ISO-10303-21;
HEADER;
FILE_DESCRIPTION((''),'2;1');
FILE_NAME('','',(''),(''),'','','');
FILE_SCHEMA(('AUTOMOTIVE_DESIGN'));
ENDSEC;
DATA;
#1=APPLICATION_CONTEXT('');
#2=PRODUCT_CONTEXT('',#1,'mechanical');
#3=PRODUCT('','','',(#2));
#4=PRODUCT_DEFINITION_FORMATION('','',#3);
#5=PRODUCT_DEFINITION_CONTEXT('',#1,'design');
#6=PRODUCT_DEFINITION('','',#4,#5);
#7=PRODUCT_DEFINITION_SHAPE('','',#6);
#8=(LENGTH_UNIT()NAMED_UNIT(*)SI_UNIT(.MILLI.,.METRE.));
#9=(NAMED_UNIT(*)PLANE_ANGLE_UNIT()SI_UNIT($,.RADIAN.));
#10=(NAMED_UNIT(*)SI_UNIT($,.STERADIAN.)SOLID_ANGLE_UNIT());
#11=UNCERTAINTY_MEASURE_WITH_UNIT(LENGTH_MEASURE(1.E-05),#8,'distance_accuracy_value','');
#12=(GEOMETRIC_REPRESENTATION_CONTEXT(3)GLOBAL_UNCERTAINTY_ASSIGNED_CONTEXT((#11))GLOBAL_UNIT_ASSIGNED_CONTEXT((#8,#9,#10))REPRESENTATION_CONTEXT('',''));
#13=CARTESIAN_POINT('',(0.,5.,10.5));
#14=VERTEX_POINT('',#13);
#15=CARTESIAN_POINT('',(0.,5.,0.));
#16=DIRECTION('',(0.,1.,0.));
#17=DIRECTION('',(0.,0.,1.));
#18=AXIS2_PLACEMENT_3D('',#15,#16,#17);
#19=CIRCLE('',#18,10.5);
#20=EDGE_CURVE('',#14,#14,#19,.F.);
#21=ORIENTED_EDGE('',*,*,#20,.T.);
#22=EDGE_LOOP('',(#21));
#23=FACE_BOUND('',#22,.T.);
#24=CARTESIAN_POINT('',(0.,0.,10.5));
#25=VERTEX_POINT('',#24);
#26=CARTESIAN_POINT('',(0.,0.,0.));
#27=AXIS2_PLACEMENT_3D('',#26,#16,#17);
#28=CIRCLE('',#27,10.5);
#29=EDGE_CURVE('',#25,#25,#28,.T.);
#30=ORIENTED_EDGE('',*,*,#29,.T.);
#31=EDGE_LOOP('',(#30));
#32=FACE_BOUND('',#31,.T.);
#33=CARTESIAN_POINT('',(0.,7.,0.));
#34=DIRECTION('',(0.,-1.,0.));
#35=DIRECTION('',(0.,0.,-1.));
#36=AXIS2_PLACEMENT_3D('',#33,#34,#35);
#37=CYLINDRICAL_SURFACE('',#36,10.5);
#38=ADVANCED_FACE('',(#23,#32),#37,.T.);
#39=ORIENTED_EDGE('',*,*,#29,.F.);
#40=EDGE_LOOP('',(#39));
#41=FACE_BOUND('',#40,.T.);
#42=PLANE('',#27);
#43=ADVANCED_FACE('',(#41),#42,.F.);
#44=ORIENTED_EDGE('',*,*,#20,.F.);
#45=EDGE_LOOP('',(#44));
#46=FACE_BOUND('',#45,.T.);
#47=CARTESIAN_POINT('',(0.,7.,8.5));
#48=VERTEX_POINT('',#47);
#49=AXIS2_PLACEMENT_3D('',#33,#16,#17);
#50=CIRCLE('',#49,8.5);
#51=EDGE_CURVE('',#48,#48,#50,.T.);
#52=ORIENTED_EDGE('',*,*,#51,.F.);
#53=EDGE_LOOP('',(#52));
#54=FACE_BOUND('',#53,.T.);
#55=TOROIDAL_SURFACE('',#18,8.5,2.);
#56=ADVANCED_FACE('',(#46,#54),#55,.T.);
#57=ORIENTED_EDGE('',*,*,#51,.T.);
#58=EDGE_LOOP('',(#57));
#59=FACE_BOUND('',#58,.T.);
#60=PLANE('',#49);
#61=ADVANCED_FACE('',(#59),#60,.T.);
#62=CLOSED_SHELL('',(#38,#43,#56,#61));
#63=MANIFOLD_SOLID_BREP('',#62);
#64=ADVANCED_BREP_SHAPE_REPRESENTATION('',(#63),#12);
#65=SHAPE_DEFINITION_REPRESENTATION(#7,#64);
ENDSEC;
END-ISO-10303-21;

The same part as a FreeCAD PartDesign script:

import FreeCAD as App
import Part
import Sketcher
Q = App.Units.Quantity


def edges_at(feature, points):
    """Names of the edges that pass closest to the given points."""
    edges = feature.Shape.Edges
    near = lambda p: min(range(len(edges)), key=lambda i: edges[i].distToShape(Part.Vertex(*p))[0])
    return sorted({f"Edge{near(p) + 1}" for p in points})

doc = App.newDocument("Part")
body = doc.addObject("PartDesign::Body", "Body")

sketch1 = body.newObject("Sketcher::SketchObject", "Sketch")
sketch1.AttachmentSupport = (doc.getObject("XZ_Plane"), [""])
sketch1.MapMode = "FlatFace"
sketch1.addGeometry(Part.Circle(App.Vector(0, 0, 0), App.Vector(0, 0, 1), 10.5), False)
sketch1.addConstraint([
    Sketcher.Constraint("Coincident", 0, 3, -1, 1),
    Sketcher.Constraint("Diameter", 0, Q("21 mm")),
])
pad1 = body.newObject("PartDesign::Pad", "Pad")
pad1.Profile = sketch1
pad1.Length = 7
pad1.Reversed = True
doc.recompute()

fillet = body.newObject("PartDesign::Fillet", "Fillet")
fillet.Base = (pad1, edges_at(pad1, [(0, 7, -10.5)]))
fillet.Radius = 2

doc.recompute()
